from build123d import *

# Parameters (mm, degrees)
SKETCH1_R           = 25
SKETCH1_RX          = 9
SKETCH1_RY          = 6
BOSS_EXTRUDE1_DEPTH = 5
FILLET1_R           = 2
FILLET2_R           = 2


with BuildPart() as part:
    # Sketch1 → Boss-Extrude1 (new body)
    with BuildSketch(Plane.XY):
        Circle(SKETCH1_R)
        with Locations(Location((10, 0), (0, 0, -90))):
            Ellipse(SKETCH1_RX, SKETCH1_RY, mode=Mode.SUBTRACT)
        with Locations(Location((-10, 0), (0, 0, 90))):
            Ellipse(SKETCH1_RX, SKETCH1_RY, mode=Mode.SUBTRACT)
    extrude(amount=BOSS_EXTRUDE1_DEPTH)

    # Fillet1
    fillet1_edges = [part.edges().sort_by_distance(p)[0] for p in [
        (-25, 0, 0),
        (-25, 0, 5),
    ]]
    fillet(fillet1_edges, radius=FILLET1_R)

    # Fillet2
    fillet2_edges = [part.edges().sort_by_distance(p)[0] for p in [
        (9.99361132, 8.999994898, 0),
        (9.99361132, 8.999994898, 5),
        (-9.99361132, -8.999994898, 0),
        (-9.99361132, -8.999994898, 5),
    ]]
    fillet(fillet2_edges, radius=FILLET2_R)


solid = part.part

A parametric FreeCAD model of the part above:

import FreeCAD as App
import Part
import Sketcher
from FreeCAD import Vector
Q = App.Units.Quantity


def edges_at(feature, points):
    """Names of the edges that pass closest to the given points."""
    edges = feature.Shape.Edges
    near = lambda p: min(range(len(edges)), key=lambda i: edges[i].distToShape(Part.Vertex(*p))[0])
    return sorted({f"Edge{near(p) + 1}" for p in points})

doc = App.newDocument("Part")
body = doc.addObject("PartDesign::Body", "Body")

sketch1 = body.newObject("Sketcher::SketchObject", "Sketch")
sketch1.AttachmentSupport = (doc.getObject("XY_Plane"), [""])
sketch1.MapMode = "FlatFace"
sketch1.addGeometry(Part.Circle(Vector(0, 0, 0), Vector(0, 0, 1), 25), False)
sketch1.addGeometry(Part.Ellipse(Vector(-10, 9, 0), Vector(-16, 0, 0), Vector(-10, 0, 0)), False)
sketch1.addGeometry(Part.Ellipse(Vector(10, -9, 0), Vector(16, 0, 0), Vector(10, 0, 0)), False)
sketch1.addConstraint(Sketcher.Constraint("Block", 1))
sketch1.addConstraint(Sketcher.Constraint("Block", 2))
sketch1.addConstraint(Sketcher.Constraint("Coincident", 0, 3, -1, 1))
sketch1.addConstraint(Sketcher.Constraint("Diameter", 0, Q("50 mm")))
pad1 = body.newObject("PartDesign::Pad", "Pad")
pad1.Profile = sketch1
pad1.Length = 5
doc.recompute()

fillet = body.newObject("PartDesign::Fillet", "Fillet")
fillet.Base = (pad1, edges_at(pad1, [(-25, 0, 0), (-25, 0, 5)]))
fillet.Radius = 2
doc.recompute()

fillet2 = body.newObject("PartDesign::Fillet", "Fillet001")
fillet2.Base = (fillet, edges_at(fillet, [
    (9.994, 9, 0),
    (9.994, 9, 5),
    (-9.994, -9, 0),
    (-9.994, -9, 5),
]))
fillet2.Radius = 2

doc.recompute()
